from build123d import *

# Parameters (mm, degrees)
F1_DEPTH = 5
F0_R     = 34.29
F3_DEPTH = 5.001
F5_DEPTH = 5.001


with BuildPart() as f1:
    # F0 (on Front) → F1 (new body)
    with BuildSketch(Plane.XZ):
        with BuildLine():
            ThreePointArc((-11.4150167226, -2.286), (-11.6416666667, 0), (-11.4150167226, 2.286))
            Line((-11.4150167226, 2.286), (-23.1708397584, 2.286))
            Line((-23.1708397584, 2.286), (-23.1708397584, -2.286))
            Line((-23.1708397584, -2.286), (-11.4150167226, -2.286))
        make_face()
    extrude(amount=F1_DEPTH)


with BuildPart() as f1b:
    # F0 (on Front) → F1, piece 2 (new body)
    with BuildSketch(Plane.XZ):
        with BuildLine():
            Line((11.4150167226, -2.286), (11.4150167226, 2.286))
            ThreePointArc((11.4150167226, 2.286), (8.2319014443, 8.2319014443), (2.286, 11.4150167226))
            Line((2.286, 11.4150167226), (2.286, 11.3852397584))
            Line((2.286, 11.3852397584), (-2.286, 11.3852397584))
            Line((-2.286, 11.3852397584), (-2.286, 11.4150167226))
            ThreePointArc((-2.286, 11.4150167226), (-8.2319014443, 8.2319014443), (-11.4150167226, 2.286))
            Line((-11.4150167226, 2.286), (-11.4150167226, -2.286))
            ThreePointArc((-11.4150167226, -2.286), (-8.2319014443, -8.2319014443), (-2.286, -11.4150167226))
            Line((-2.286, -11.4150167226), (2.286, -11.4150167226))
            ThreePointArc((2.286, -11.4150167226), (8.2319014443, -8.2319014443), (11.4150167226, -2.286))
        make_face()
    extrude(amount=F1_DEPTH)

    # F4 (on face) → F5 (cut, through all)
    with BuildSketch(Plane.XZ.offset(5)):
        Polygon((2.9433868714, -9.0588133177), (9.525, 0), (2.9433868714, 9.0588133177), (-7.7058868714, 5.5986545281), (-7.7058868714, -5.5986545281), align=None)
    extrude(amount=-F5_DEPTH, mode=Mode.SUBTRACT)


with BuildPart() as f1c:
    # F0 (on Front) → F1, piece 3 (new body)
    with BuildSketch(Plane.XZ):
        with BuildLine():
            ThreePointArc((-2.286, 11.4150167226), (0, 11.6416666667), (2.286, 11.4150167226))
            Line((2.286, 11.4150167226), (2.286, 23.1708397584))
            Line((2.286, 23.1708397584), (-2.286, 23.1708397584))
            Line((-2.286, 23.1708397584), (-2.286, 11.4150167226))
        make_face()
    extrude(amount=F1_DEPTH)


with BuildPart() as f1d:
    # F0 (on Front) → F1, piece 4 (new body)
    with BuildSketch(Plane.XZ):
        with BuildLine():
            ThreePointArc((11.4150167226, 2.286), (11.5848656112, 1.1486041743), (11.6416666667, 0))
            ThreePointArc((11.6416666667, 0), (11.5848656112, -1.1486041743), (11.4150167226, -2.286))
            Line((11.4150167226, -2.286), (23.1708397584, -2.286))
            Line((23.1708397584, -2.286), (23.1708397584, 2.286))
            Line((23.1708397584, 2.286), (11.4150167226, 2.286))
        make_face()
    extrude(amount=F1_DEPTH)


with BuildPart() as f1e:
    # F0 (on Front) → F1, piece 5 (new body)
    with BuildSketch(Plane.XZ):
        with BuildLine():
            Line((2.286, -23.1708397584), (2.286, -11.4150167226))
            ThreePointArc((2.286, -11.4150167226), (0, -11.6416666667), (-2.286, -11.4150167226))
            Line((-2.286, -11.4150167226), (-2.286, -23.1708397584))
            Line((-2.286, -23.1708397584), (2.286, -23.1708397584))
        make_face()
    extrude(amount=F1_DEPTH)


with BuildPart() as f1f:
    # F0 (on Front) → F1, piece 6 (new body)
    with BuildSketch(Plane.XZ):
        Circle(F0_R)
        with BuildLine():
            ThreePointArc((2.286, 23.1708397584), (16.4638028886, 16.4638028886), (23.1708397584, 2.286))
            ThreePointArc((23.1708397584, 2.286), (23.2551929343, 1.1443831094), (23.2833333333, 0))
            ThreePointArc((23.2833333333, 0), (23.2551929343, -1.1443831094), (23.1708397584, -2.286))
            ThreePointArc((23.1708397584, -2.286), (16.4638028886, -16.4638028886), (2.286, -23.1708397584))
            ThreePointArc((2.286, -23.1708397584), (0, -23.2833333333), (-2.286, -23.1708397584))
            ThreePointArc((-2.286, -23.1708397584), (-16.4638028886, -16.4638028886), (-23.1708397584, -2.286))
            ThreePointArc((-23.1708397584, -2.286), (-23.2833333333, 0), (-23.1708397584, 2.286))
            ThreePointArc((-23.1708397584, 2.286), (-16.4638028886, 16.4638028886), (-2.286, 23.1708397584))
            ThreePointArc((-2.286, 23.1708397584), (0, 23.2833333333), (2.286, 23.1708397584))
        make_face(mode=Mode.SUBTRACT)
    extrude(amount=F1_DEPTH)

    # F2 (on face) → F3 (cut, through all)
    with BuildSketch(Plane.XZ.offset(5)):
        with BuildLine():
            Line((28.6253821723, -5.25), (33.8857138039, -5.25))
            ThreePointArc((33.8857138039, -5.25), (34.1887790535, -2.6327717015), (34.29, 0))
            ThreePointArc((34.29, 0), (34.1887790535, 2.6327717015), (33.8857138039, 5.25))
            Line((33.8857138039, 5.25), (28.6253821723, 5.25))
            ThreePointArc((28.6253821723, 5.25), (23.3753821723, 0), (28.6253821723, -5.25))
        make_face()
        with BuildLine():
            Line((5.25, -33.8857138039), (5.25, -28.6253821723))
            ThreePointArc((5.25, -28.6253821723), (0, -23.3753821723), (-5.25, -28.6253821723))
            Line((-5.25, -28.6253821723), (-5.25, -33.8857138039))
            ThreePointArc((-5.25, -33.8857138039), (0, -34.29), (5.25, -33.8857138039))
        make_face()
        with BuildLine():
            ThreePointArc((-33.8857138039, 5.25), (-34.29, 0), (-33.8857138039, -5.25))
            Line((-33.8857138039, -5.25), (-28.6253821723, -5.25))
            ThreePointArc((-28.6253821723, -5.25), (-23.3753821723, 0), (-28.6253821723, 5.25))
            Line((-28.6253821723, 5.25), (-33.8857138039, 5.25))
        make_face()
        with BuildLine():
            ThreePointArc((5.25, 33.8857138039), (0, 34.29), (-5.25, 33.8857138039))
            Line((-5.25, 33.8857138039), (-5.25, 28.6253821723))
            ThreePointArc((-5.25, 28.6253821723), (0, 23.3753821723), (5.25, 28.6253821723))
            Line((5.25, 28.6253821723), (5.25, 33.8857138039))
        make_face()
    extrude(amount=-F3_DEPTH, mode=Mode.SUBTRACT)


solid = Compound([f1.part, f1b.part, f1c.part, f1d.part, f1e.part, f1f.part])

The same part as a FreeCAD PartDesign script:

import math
import FreeCAD as App
import Part
import Sketcher
from FreeCAD import Vector
Q = App.Units.Quantity


def add_polygon(sketch, points):
    """Adds a closed chain of lines whose ends are joined by coincident constraints."""
    first, n = sketch.GeometryCount, len(points)
    for a, b in zip(points, points[1:] + points[:1]):
        sketch.addGeometry(Part.LineSegment(App.Vector(*a, 0), App.Vector(*b, 0)), False)
    for i in range(n):
        sketch.addConstraint(Sketcher.Constraint("Coincident", first + i, 2, first + (i + 1) % n, 1))

doc = App.newDocument("Part")
body = doc.addObject("PartDesign::Body", "Body")

sketch1 = body.newObject("Sketcher::SketchObject", "Sketch")
sketch1.AttachmentSupport = (doc.getObject("XZ_Plane"), [""])
sketch1.MapMode = "FlatFace"
sketch1.addGeometry(Part.ArcOfCircle(Part.Circle(Vector(0, 0, 0), Vector(0, 0, 1), 11.641667), math.radians(168.675606), math.radians(191.324394)), False)
sketch1.addGeometry(Part.LineSegment(Vector(-11.415017, 2.286, 0), Vector(-23.17084, 2.286, 0)), False)
sketch1.addGeometry(Part.LineSegment(Vector(-23.17084, 2.286, 0), Vector(-23.17084, -2.286, 0)), False)
sketch1.addGeometry(Part.LineSegment(Vector(-23.17084, -2.286, 0), Vector(-11.415017, -2.286, 0)), False)
sketch1.addConstraint(Sketcher.Constraint("Coincident", 0, 1, 1, 1))
sketch1.addConstraint(Sketcher.Constraint("Coincident", 1, 2, 2, 1))
sketch1.addConstraint(Sketcher.Constraint("Coincident", 2, 2, 3, 1))
sketch1.addConstraint(Sketcher.Constraint("Coincident", 3, 2, 0, 2))
sketch1.addConstraint(Sketcher.Constraint("Horizontal", 1))
sketch1.addConstraint(Sketcher.Constraint("Vertical", 2))
sketch1.addConstraint(Sketcher.Constraint("Horizontal", 3))
sketch1.addConstraint(Sketcher.Constraint("Coincident", 0, 3, -1, 1))
sketch1.addConstraint(Sketcher.Constraint("Vertical", 0, 1, 3, 2))
sketch1.addConstraint(Sketcher.Constraint("DistanceY", 2, 2, 2, 1, Q("4.572 mm")))
sketch1.addConstraint(Sketcher.Constraint("Radius", 0, Q("11.641667 mm")))
sketch1.addConstraint(Sketcher.Constraint("DistanceX", 1, 2, 1, 1, Q("11.755823 mm")))
pad1 = body.newObject("PartDesign::Pad", "Pad")
pad1.Profile = sketch1
pad1.Length = 5
body2 = doc.addObject("PartDesign::Body", "Body001")

sketch2 = body2.newObject("Sketcher::SketchObject", "Sketch001")
sketch2.AttachmentSupport = (doc.getObject("XZ_Plane001"), [""])
sketch2.MapMode = "FlatFace"
sketch2.addGeometry(Part.LineSegment(Vector(11.415017, -2.286, 0), Vector(11.415017, 2.286, 0)), False)
sketch2.addGeometry(Part.ArcOfCircle(Part.Circle(Vector(0, 0, 0), Vector(0, 0, 1), 11.641667), math.radians(11.324394), math.radians(78.675606)), False)
sketch2.addGeometry(Part.LineSegment(Vector(2.286, 11.415017, 0), Vector(2.286, 11.38524, 0)), False)
sketch2.addGeometry(Part.LineSegment(Vector(2.286, 11.38524, 0), Vector(-2.286, 11.38524, 0)), False)
sketch2.addGeometry(Part.LineSegment(Vector(-2.286, 11.38524, 0), Vector(-2.286, 11.415017, 0)), False)
sketch2.addGeometry(Part.ArcOfCircle(Part.Circle(Vector(0, 0, 0), Vector(0, 0, 1), 11.641667), math.radians(101.324394), math.radians(168.675606)), False)
sketch2.addGeometry(Part.LineSegment(Vector(-11.415017, 2.286, 0), Vector(-11.415017, -2.286, 0)), False)
sketch2.addGeometry(Part.ArcOfCircle(Part.Circle(Vector(0, 0, 0), Vector(0, 0, 1), 11.641667), math.radians(-168.675606), math.radians(-101.324394)), False)
sketch2.addGeometry(Part.LineSegment(Vector(-2.286, -11.415017, 0), Vector(2.286, -11.415017, 0)), False)
sketch2.addGeometry(Part.ArcOfCircle(Part.Circle(Vector(0, 0, 0), Vector(0, 0, 1), 11.641667), math.radians(-78.675606), math.radians(-11.324394)), False)
sketch2.addConstraint(Sketcher.Constraint("Coincident", 0, 2, 1, 1))
sketch2.addConstraint(Sketcher.Constraint("Coincident", 1, 2, 2, 1))
sketch2.addConstraint(Sketcher.Constraint("Coincident", 2, 2, 3, 1))
sketch2.addConstraint(Sketcher.Constraint("Coincident", 3, 2, 4, 1))
sketch2.addConstraint(Sketcher.Constraint("Coincident", 4, 2, 5, 1))
sketch2.addConstraint(Sketcher.Constraint("Coincident", 5, 2, 6, 1))
sketch2.addConstraint(Sketcher.Constraint("Coincident", 6, 2, 7, 1))
sketch2.addConstraint(Sketcher.Constraint("Coincident", 7, 2, 8, 1))
sketch2.addConstraint(Sketcher.Constraint("Coincident", 8, 2, 9, 1))
sketch2.addConstraint(Sketcher.Constraint("Coincident", 9, 2, 0, 1))
sketch2.addConstraint(Sketcher.Constraint("Vertical", 0))
sketch2.addConstraint(Sketcher.Constraint("Vertical", 2))
sketch2.addConstraint(Sketcher.Constraint("Horizontal", 3))
sketch2.addConstraint(Sketcher.Constraint("Vertical", 4))
sketch2.addConstraint(Sketcher.Constraint("Vertical", 6))
sketch2.addConstraint(Sketcher.Constraint("Horizontal", 8))
sketch2.addConstraint(Sketcher.Constraint("Coincident", 1, 3, -1, 1))
sketch2.addConstraint(Sketcher.Constraint("Coincident", 5, 3, -1, 1))
sketch2.addConstraint(Sketcher.Constraint("Coincident", 7, 3, -1, 1))
sketch2.addConstraint(Sketcher.Constraint("Coincident", 9, 3, -1, 1))
sketch2.addConstraint(Sketcher.Constraint("Equal", 1, 5))
sketch2.addConstraint(Sketcher.Constraint("Equal", 5, 7))
sketch2.addConstraint(Sketcher.Constraint("Equal", 7, 9))
sketch2.addConstraint(Sketcher.Constraint("Horizontal", 1, 2, 4, 2))
sketch2.addConstraint(Sketcher.Constraint("Horizontal", 0, 2, 5, 2))
sketch2.addConstraint(Sketcher.Constraint("Vertical", 4, 2, 7, 2))
sketch2.addConstraint(Sketcher.Constraint("Equal", 8, 0))
sketch2.addConstraint(Sketcher.Constraint("DistanceX", 3, 2, 3, 1, Q("4.572 mm")))
sketch2.addConstraint(Sketcher.Constraint("Radius", 1, Q("11.641667 mm")))
sketch2.addConstraint(Sketcher.Constraint("DistanceY", 2, 2, 2, 1, Q("0.029777 mm")))
pad2 = body2.newObject("PartDesign::Pad", "Pad001")
pad2.Profile = sketch2
pad2.Length = 5

sketch3 = body2.newObject("Sketcher::SketchObject", "Sketch002")
sketch3.AttachmentSupport = (doc.getObject("XZ_Plane001"), [""])
sketch3.MapMode = "FlatFace"
sketch3.AttachmentOffset = App.Placement(Vector(0, 0, 5), App.Rotation())
add_polygon(sketch3, [(2.943387, -9.058813), (9.525, 0), (2.943387, 9.058813), (-7.705887, 5.598655), (-7.705887, -5.598655)])
sketch3.addConstraint(Sketcher.Constraint("Vertical", 3))
sketch3.addConstraint(Sketcher.Constraint("Symmetric", 1, 2, 4, 2, -1))
sketch3.addConstraint(Sketcher.Constraint("PointOnObject", 0, 2, -1))
sketch3.addConstraint(Sketcher.Constraint("Equal", 1, 2))
sketch3.addConstraint(Sketcher.Constraint("Equal", 2, 4))
sketch3.addConstraint(Sketcher.Constraint("Angle", 0, Q("54 deg")))
sketch3.addConstraint(Sketcher.Constraint("Angle", 2, Q("-162 deg")))
sketch3.addConstraint(Sketcher.Constraint("DistanceX", -1, 1, 0, 2, Q("9.525 mm")))
sketch3.addConstraint(Sketcher.Constraint("DistanceY", 3, 2, 3, 1, Q("11.197309 mm")))
pocket1 = body2.newObject("PartDesign::Pocket", "Pocket")
pocket1.Profile = sketch3
pocket1.Type = "ThroughAll"
body3 = doc.addObject("PartDesign::Body", "Body002")

sketch4 = body3.newObject("Sketcher::SketchObject", "Sketch003")
sketch4.AttachmentSupport = (doc.getObject("XZ_Plane002"), [""])
sketch4.MapMode = "FlatFace"
sketch4.addGeometry(Part.ArcOfCircle(Part.Circle(Vector(0, 0, 0), Vector(0, 0, 1), 11.641667), math.radians(78.675606), math.radians(101.324394)), False)
sketch4.addGeometry(Part.LineSegment(Vector(2.286, 11.415017, 0), Vector(2.286, 23.17084, 0)), False)
sketch4.addGeometry(Part.LineSegment(Vector(2.286, 23.17084, 0), Vector(-2.286, 23.17084, 0)), False)
sketch4.addGeometry(Part.LineSegment(Vector(-2.286, 23.17084, 0), Vector(-2.286, 11.415017, 0)), False)
sketch4.addConstraint(Sketcher.Constraint("Coincident", 0, 1, 1, 1))
sketch4.addConstraint(Sketcher.Constraint("Coincident", 1, 2, 2, 1))
sketch4.addConstraint(Sketcher.Constraint("Coincident", 2, 2, 3, 1))
sketch4.addConstraint(Sketcher.Constraint("Coincident", 3, 2, 0, 2))
sketch4.addConstraint(Sketcher.Constraint("Vertical", 1))
sketch4.addConstraint(Sketcher.Constraint("Horizontal", 2))
sketch4.addConstraint(Sketcher.Constraint("Vertical", 3))
sketch4.addConstraint(Sketcher.Constraint("Coincident", 0, 3, -1, 1))
sketch4.addConstraint(Sketcher.Constraint("Horizontal", 0, 1, 3, 2))
sketch4.addConstraint(Sketcher.Constraint("DistanceX", 2, 2, 2, 1, Q("4.572 mm")))
sketch4.addConstraint(Sketcher.Constraint("Radius", 0, Q("11.641667 mm")))
sketch4.addConstraint(Sketcher.Constraint("DistanceY", 1, 1, 1, 2, Q("11.755823 mm")))
pad3 = body3.newObject("PartDesign::Pad", "Pad002")
pad3.Profile = sketch4
pad3.Length = 5
body4 = doc.addObject("PartDesign::Body", "Body003")

sketch5 = body4.newObject("Sketcher::SketchObject", "Sketch004")
sketch5.AttachmentSupport = (doc.getObject("XZ_Plane003"), [""])
sketch5.MapMode = "FlatFace"
sketch5.addGeometry(Part.ArcOfCircle(Part.Circle(Vector(0, 0, 0), Vector(0, 0, 1), 11.641667), math.radians(0), math.radians(11.324394)), False)
sketch5.addGeometry(Part.ArcOfCircle(Part.Circle(Vector(0, 0, 0), Vector(0, 0, 1), 11.641667), math.radians(-11.324394), math.radians(0)), False)
sketch5.addGeometry(Part.LineSegment(Vector(11.415017, -2.286, 0), Vector(23.17084, -2.286, 0)), False)
sketch5.addGeometry(Part.LineSegment(Vector(23.17084, -2.286, 0), Vector(23.17084, 2.286, 0)), False)
sketch5.addGeometry(Part.LineSegment(Vector(23.17084, 2.286, 0), Vector(11.415017, 2.286, 0)), False)
sketch5.addConstraint(Sketcher.Constraint("Tangent", 0, 1, 1, 2))
sketch5.addConstraint(Sketcher.Constraint("Coincident", 1, 1, 2, 1))
sketch5.addConstraint(Sketcher.Constraint("Coincident", 2, 2, 3, 1))
sketch5.addConstraint(Sketcher.Constraint("Coincident", 3, 2, 4, 1))
sketch5.addConstraint(Sketcher.Constraint("Coincident", 4, 2, 0, 2))
sketch5.addConstraint(Sketcher.Constraint("Horizontal", 2))
sketch5.addConstraint(Sketcher.Constraint("Vertical", 3))
sketch5.addConstraint(Sketcher.Constraint("Horizontal", 4))
sketch5.addConstraint(Sketcher.Constraint("Coincident", 0, 3, -1, 1))
sketch5.addConstraint(Sketcher.Constraint("Equal", 0, 1))
sketch5.addConstraint(Sketcher.Constraint("PointOnObject", 0, 1, -1))
sketch5.addConstraint(Sketcher.Constraint("Vertical", 1, 1, 4, 2))
sketch5.addConstraint(Sketcher.Constraint("DistanceY", 3, 1, 3, 2, Q("4.572 mm")))
sketch5.addConstraint(Sketcher.Constraint("Radius", 0, Q("11.641667 mm")))
sketch5.addConstraint(Sketcher.Constraint("DistanceX", 2, 1, 2, 2, Q("11.755823 mm")))
pad4 = body4.newObject("PartDesign::Pad", "Pad003")
pad4.Profile = sketch5
pad4.Length = 5
body5 = doc.addObject("PartDesign::Body", "Body004")

sketch6 = body5.newObject("Sketcher::SketchObject", "Sketch005")
sketch6.AttachmentSupport = (doc.getObject("XZ_Plane004"), [""])
sketch6.MapMode = "FlatFace"
sketch6.addGeometry(Part.LineSegment(Vector(2.286, -23.17084, 0), Vector(2.286, -11.415017, 0)), False)
sketch6.addGeometry(Part.ArcOfCircle(Part.Circle(Vector(0, 0, 0), Vector(0, 0, 1), 11.641667), math.radians(-101.324394), math.radians(-78.675606)), False)
sketch6.addGeometry(Part.LineSegment(Vector(-2.286, -11.415017, 0), Vector(-2.286, -23.17084, 0)), False)
sketch6.addGeometry(Part.LineSegment(Vector(-2.286, -23.17084, 0), Vector(2.286, -23.17084, 0)), False)
sketch6.addConstraint(Sketcher.Constraint("Coincident", 0, 2, 1, 2))
sketch6.addConstraint(Sketcher.Constraint("Coincident", 1, 1, 2, 1))
sketch6.addConstraint(Sketcher.Constraint("Coincident", 2, 2, 3, 1))
sketch6.addConstraint(Sketcher.Constraint("Coincident", 3, 2, 0, 1))
sketch6.addConstraint(Sketcher.Constraint("Vertical", 0))
sketch6.addConstraint(Sketcher.Constraint("Vertical", 2))
sketch6.addConstraint(Sketcher.Constraint("Horizontal", 3))
sketch6.addConstraint(Sketcher.Constraint("Coincident", 1, 3, -1, 1))
sketch6.addConstraint(Sketcher.Constraint("Horizontal", 0, 2, 1, 1))
sketch6.addConstraint(Sketcher.Constraint("DistanceX", 3, 1, 3, 2, Q("4.572 mm")))
sketch6.addConstraint(Sketcher.Constraint("Radius", 1, Q("11.641667 mm")))
sketch6.addConstraint(Sketcher.Constraint("DistanceY", 0, 1, 0, 2, Q("11.755823 mm")))
pad5 = body5.newObject("PartDesign::Pad", "Pad004")
pad5.Profile = sketch6
pad5.Length = 5
body6 = doc.addObject("PartDesign::Body", "Body005")

sketch7 = body6.newObject("Sketcher::SketchObject", "Sketch006")
sketch7.AttachmentSupport = (doc.getObject("XZ_Plane005"), [""])
sketch7.MapMode = "FlatFace"
sketch7.addGeometry(Part.Circle(Vector(0, 0, 0), Vector(0, 0, 1), 34.29), False)
sketch7.addGeometry(Part.ArcOfCircle(Part.Circle(Vector(0, 0, 0), Vector(0, 0, 1), 23.283333), math.radians(84.365519), math.radians(95.634481)), False)
sketch7.addGeometry(Part.ArcOfCircle(Part.Circle(Vector(0, 0, 0), Vector(0, 0, 1), 23.283333), math.radians(5.634481), math.radians(84.365519)), False)
sketch7.addGeometry(Part.ArcOfCircle(Part.Circle(Vector(0, 0, 0), Vector(0, 0, 1), 23.283333), math.radians(0), math.radians(5.634481)), False)
sketch7.addGeometry(Part.ArcOfCircle(Part.Circle(Vector(0, 0, 0), Vector(0, 0, 1), 23.283333), math.radians(-5.634481), math.radians(0)), False)
sketch7.addGeometry(Part.ArcOfCircle(Part.Circle(Vector(0, 0, 0), Vector(0, 0, 1), 23.283333), math.radians(-84.365519), math.radians(-5.634481)), False)
sketch7.addGeometry(Part.ArcOfCircle(Part.Circle(Vector(0, 0, 0), Vector(0, 0, 1), 23.283333), math.radians(-95.634481), math.radians(-84.365519)), False)
sketch7.addGeometry(Part.ArcOfCircle(Part.Circle(Vector(0, 0, 0), Vector(0, 0, 1), 23.283333), math.radians(-174.365519), math.radians(-95.634481)), False)
sketch7.addGeometry(Part.ArcOfCircle(Part.Circle(Vector(0, 0, 0), Vector(0, 0, 1), 23.283333), math.radians(174.365519), math.radians(185.634481)), False)
sketch7.addGeometry(Part.ArcOfCircle(Part.Circle(Vector(0, 0, 0), Vector(0, 0, 1), 23.283333), math.radians(95.634481), math.radians(174.365519)), False)
sketch7.addConstraint(Sketcher.Constraint("Tangent", 1, 1, 2, 2))
sketch7.addConstraint(Sketcher.Constraint("Tangent", 2, 1, 3, 2))
sketch7.addConstraint(Sketcher.Constraint("Tangent", 3, 1, 4, 2))
sketch7.addConstraint(Sketcher.Constraint("Tangent", 4, 1, 5, 2))
sketch7.addConstraint(Sketcher.Constraint("Tangent", 5, 1, 6, 2))
sketch7.addConstraint(Sketcher.Constraint("Tangent", 6, 1, 7, 2))
sketch7.addConstraint(Sketcher.Constraint("Tangent", 7, 1, 8, 2))
sketch7.addConstraint(Sketcher.Constraint("Tangent", 8, 1, 9, 2))
sketch7.addConstraint(Sketcher.Constraint("Tangent", 9, 1, 1, 2))
sketch7.addConstraint(Sketcher.Constraint("Coincident", 0, 3, -1, 1))
sketch7.addConstraint(Sketcher.Constraint("Coincident", 1, 3, -1, 1))
sketch7.addConstraint(Sketcher.Constraint("Coincident", 3, 3, -1, 1))
sketch7.addConstraint(Sketcher.Constraint("Coincident", 5, 3, -1, 1))
sketch7.addConstraint(Sketcher.Constraint("Coincident", 7, 3, -1, 1))
sketch7.addConstraint(Sketcher.Constraint("PointOnObject", 3, 1, -1))
sketch7.addConstraint(Sketcher.Constraint("Horizontal", 5, 1, 6, 1))
sketch7.addConstraint(Sketcher.Constraint("Horizontal", 4, 1, 7, 1))
sketch7.addConstraint(Sketcher.Constraint("Horizontal", 2, 1, 8, 1))
sketch7.addConstraint(Sketcher.Constraint("Horizontal", 1, 1, 9, 1))
sketch7.addConstraint(Sketcher.Constraint("Vertical", 2, 1, 4, 1))
sketch7.addConstraint(Sketcher.Constraint("Vertical", 1, 1, 5, 1))
sketch7.addConstraint(Sketcher.Constraint("Diameter", 0, Q("68.58 mm")))
sketch7.addConstraint(Sketcher.Constraint("DistanceX", -1, 1, 1, 1, Q("2.286 mm")))
sketch7.addConstraint(Sketcher.Constraint("DistanceY", -1, 1, 2, 1, Q("2.286 mm")))
sketch7.addConstraint(Sketcher.Constraint("Radius", 1, Q("23.283333 mm")))
pad6 = body6.newObject("PartDesign::Pad", "Pad005")
pad6.Profile = sketch7
pad6.Length = 5

sketch8 = body6.newObject("Sketcher::SketchObject", "Sketch007")
sketch8.AttachmentSupport = (doc.getObject("XZ_Plane005"), [""])
sketch8.MapMode = "FlatFace"
sketch8.AttachmentOffset = App.Placement(Vector(0, 0, 5), App.Rotation())
sketch8.addGeometry(Part.LineSegment(Vector(28.625382, -5.25, 0), Vector(33.885714, -5.25, 0)), False)
sketch8.addGeometry(Part.ArcOfCircle(Part.Circle(Vector(0, 0, 0), Vector(0, 0, 1), 34.29), math.radians(-8.806959), math.radians(0)), False)
sketch8.addGeometry(Part.ArcOfCircle(Part.Circle(Vector(0, 0, 0), Vector(0, 0, 1), 34.29), math.radians(0), math.radians(8.806959)), False)
sketch8.addGeometry(Part.LineSegment(Vector(33.885714, 5.25, 0), Vector(28.625382, 5.25, 0)), False)
sketch8.addGeometry(Part.ArcOfCircle(Part.Circle(Vector(28.625382, 0, 0), Vector(0, 0, 1), 5.25), math.radians(90), math.radians(270)), False)
sketch8.addGeometry(Part.LineSegment(Vector(5.25, -33.885714, 0), Vector(5.25, -28.625382, 0)), False)
sketch8.addGeometry(Part.ArcOfCircle(Part.Circle(Vector(0, -28.625382, 0), Vector(0, 0, 1), 5.25), math.radians(0), math.radians(180)), False)
sketch8.addGeometry(Part.LineSegment(Vector(-5.25, -28.625382, 0), Vector(-5.25, -33.885714, 0)), False)
sketch8.addGeometry(Part.ArcOfCircle(Part.Circle(Vector(0, 0, 0), Vector(0, 0, 1), 34.29), math.radians(-98.806959), math.radians(-81.193041)), False)
sketch8.addGeometry(Part.ArcOfCircle(Part.Circle(Vector(0, 0, 0), Vector(0, 0, 1), 34.29), math.radians(171.193041), math.radians(188.806959)), False)
sketch8.addGeometry(Part.LineSegment(Vector(-33.885714, -5.25, 0), Vector(-28.625382, -5.25, 0)), False)
sketch8.addGeometry(Part.ArcOfCircle(Part.Circle(Vector(-28.625382, 0, 0), Vector(0, 0, 1), 5.25), math.radians(-90), math.radians(90)), False)
sketch8.addGeometry(Part.LineSegment(Vector(-28.625382, 5.25, 0), Vector(-33.885714, 5.25, 0)), False)
sketch8.addGeometry(Part.ArcOfCircle(Part.Circle(Vector(0, 0, 0), Vector(0, 0, 1), 34.29), math.radians(81.193041), math.radians(98.806959)), False)
sketch8.addGeometry(Part.LineSegment(Vector(-5.25, 33.885714, 0), Vector(-5.25, 28.625382, 0)), False)
sketch8.addGeometry(Part.ArcOfCircle(Part.Circle(Vector(0, 28.625382, 0), Vector(0, 0, 1), 5.25), math.radians(180), math.radians(360)), False)
sketch8.addGeometry(Part.LineSegment(Vector(5.25, 28.625382, 0), Vector(5.25, 33.885714, 0)), False)
sketch8.addConstraint(Sketcher.Constraint("Coincident", 0, 2, 1, 1))
sketch8.addConstraint(Sketcher.Constraint("Tangent", 1, 2, 2, 1))
sketch8.addConstraint(Sketcher.Constraint("Coincident", 2, 2, 3, 1))
sketch8.addConstraint(Sketcher.Constraint("Tangent", 3, 2, 4, 1))
sketch8.addConstraint(Sketcher.Constraint("Tangent", 4, 2, 0, 1))
sketch8.addConstraint(Sketcher.Constraint("Tangent", 5, 2, 6, 1))
sketch8.addConstraint(Sketcher.Constraint("Tangent", 6, 2, 7, 1))
sketch8.addConstraint(Sketcher.Constraint("Coincident", 7, 2, 8, 1))
sketch8.addConstraint(Sketcher.Constraint("Coincident", 8, 2, 5, 1))
sketch8.addConstraint(Sketcher.Constraint("Coincident", 9, 2, 10, 1))
sketch8.addConstraint(Sketcher.Constraint("Tangent", 10, 2, 11, 1))
sketch8.addConstraint(Sketcher.Constraint("Tangent", 11, 2, 12, 1))
sketch8.addConstraint(Sketcher.Constraint("Coincident", 12, 2, 9, 1))
sketch8.addConstraint(Sketcher.Constraint("Coincident", 13, 2, 14, 1))
sketch8.addConstraint(Sketcher.Constraint("Tangent", 14, 2, 15, 1))
sketch8.addConstraint(Sketcher.Constraint("Tangent", 15, 2, 16, 1))
sketch8.addConstraint(Sketcher.Constraint("Coincident", 16, 2, 13, 1))
sketch8.addConstraint(Sketcher.Constraint("Horizontal", 0))
sketch8.addConstraint(Sketcher.Constraint("Horizontal", 3))
sketch8.addConstraint(Sketcher.Constraint("Vertical", 5))
sketch8.addConstraint(Sketcher.Constraint("Vertical", 7))
sketch8.addConstraint(Sketcher.Constraint("Horizontal", 10))
sketch8.addConstraint(Sketcher.Constraint("Horizontal", 12))
sketch8.addConstraint(Sketcher.Constraint("Vertical", 14))
sketch8.addConstraint(Sketcher.Constraint("Vertical", 16))
sketch8.addConstraint(Sketcher.Constraint("Coincident", 1, 3, -1, 1))
sketch8.addConstraint(Sketcher.Constraint("Coincident", 8, 3, -1, 1))
sketch8.addConstraint(Sketcher.Constraint("Coincident", 9, 3, -1, 1))
sketch8.addConstraint(Sketcher.Constraint("Coincident", 13, 3, -1, 1))
sketch8.addConstraint(Sketcher.Constraint("Equal", 1, 2))
sketch8.addConstraint(Sketcher.Constraint("Equal", 4, 6))
sketch8.addConstraint(Sketcher.Constraint("Equal", 2, 8))
sketch8.addConstraint(Sketcher.Constraint("Equal", 8, 9))
sketch8.addConstraint(Sketcher.Constraint("Equal", 6, 11))
sketch8.addConstraint(Sketcher.Constraint("Equal", 9, 13))
sketch8.addConstraint(Sketcher.Constraint("Equal", 11, 15))
sketch8.addConstraint(Sketcher.Constraint("Symmetric", 4, 3, 11, 3, -1, 1))
sketch8.addConstraint(Sketcher.Constraint("Symmetric", 6, 3, 15, 3, -1, 1))
sketch8.addConstraint(Sketcher.Constraint("PointOnObject", 4, 3, -1))
sketch8.addConstraint(Sketcher.Constraint("PointOnObject", 6, 3, -2))
sketch8.addConstraint(Sketcher.Constraint("PointOnObject", 1, 2, -1))
sketch8.addConstraint(Sketcher.Constraint("Equal", 12, 5))
sketch8.addConstraint(Sketcher.Constraint("Radius", 1, Q("34.29 mm")))
sketch8.addConstraint(Sketcher.Constraint("Radius", 4, Q("5.25 mm")))
sketch8.addConstraint(Sketcher.Constraint("DistanceX", 0, 1, 0, 2, Q("5.260332 mm")))
pocket2 = body6.newObject("PartDesign::Pocket", "Pocket001")
pocket2.Profile = sketch8
pocket2.Type = "ThroughAll"

doc.recompute()
